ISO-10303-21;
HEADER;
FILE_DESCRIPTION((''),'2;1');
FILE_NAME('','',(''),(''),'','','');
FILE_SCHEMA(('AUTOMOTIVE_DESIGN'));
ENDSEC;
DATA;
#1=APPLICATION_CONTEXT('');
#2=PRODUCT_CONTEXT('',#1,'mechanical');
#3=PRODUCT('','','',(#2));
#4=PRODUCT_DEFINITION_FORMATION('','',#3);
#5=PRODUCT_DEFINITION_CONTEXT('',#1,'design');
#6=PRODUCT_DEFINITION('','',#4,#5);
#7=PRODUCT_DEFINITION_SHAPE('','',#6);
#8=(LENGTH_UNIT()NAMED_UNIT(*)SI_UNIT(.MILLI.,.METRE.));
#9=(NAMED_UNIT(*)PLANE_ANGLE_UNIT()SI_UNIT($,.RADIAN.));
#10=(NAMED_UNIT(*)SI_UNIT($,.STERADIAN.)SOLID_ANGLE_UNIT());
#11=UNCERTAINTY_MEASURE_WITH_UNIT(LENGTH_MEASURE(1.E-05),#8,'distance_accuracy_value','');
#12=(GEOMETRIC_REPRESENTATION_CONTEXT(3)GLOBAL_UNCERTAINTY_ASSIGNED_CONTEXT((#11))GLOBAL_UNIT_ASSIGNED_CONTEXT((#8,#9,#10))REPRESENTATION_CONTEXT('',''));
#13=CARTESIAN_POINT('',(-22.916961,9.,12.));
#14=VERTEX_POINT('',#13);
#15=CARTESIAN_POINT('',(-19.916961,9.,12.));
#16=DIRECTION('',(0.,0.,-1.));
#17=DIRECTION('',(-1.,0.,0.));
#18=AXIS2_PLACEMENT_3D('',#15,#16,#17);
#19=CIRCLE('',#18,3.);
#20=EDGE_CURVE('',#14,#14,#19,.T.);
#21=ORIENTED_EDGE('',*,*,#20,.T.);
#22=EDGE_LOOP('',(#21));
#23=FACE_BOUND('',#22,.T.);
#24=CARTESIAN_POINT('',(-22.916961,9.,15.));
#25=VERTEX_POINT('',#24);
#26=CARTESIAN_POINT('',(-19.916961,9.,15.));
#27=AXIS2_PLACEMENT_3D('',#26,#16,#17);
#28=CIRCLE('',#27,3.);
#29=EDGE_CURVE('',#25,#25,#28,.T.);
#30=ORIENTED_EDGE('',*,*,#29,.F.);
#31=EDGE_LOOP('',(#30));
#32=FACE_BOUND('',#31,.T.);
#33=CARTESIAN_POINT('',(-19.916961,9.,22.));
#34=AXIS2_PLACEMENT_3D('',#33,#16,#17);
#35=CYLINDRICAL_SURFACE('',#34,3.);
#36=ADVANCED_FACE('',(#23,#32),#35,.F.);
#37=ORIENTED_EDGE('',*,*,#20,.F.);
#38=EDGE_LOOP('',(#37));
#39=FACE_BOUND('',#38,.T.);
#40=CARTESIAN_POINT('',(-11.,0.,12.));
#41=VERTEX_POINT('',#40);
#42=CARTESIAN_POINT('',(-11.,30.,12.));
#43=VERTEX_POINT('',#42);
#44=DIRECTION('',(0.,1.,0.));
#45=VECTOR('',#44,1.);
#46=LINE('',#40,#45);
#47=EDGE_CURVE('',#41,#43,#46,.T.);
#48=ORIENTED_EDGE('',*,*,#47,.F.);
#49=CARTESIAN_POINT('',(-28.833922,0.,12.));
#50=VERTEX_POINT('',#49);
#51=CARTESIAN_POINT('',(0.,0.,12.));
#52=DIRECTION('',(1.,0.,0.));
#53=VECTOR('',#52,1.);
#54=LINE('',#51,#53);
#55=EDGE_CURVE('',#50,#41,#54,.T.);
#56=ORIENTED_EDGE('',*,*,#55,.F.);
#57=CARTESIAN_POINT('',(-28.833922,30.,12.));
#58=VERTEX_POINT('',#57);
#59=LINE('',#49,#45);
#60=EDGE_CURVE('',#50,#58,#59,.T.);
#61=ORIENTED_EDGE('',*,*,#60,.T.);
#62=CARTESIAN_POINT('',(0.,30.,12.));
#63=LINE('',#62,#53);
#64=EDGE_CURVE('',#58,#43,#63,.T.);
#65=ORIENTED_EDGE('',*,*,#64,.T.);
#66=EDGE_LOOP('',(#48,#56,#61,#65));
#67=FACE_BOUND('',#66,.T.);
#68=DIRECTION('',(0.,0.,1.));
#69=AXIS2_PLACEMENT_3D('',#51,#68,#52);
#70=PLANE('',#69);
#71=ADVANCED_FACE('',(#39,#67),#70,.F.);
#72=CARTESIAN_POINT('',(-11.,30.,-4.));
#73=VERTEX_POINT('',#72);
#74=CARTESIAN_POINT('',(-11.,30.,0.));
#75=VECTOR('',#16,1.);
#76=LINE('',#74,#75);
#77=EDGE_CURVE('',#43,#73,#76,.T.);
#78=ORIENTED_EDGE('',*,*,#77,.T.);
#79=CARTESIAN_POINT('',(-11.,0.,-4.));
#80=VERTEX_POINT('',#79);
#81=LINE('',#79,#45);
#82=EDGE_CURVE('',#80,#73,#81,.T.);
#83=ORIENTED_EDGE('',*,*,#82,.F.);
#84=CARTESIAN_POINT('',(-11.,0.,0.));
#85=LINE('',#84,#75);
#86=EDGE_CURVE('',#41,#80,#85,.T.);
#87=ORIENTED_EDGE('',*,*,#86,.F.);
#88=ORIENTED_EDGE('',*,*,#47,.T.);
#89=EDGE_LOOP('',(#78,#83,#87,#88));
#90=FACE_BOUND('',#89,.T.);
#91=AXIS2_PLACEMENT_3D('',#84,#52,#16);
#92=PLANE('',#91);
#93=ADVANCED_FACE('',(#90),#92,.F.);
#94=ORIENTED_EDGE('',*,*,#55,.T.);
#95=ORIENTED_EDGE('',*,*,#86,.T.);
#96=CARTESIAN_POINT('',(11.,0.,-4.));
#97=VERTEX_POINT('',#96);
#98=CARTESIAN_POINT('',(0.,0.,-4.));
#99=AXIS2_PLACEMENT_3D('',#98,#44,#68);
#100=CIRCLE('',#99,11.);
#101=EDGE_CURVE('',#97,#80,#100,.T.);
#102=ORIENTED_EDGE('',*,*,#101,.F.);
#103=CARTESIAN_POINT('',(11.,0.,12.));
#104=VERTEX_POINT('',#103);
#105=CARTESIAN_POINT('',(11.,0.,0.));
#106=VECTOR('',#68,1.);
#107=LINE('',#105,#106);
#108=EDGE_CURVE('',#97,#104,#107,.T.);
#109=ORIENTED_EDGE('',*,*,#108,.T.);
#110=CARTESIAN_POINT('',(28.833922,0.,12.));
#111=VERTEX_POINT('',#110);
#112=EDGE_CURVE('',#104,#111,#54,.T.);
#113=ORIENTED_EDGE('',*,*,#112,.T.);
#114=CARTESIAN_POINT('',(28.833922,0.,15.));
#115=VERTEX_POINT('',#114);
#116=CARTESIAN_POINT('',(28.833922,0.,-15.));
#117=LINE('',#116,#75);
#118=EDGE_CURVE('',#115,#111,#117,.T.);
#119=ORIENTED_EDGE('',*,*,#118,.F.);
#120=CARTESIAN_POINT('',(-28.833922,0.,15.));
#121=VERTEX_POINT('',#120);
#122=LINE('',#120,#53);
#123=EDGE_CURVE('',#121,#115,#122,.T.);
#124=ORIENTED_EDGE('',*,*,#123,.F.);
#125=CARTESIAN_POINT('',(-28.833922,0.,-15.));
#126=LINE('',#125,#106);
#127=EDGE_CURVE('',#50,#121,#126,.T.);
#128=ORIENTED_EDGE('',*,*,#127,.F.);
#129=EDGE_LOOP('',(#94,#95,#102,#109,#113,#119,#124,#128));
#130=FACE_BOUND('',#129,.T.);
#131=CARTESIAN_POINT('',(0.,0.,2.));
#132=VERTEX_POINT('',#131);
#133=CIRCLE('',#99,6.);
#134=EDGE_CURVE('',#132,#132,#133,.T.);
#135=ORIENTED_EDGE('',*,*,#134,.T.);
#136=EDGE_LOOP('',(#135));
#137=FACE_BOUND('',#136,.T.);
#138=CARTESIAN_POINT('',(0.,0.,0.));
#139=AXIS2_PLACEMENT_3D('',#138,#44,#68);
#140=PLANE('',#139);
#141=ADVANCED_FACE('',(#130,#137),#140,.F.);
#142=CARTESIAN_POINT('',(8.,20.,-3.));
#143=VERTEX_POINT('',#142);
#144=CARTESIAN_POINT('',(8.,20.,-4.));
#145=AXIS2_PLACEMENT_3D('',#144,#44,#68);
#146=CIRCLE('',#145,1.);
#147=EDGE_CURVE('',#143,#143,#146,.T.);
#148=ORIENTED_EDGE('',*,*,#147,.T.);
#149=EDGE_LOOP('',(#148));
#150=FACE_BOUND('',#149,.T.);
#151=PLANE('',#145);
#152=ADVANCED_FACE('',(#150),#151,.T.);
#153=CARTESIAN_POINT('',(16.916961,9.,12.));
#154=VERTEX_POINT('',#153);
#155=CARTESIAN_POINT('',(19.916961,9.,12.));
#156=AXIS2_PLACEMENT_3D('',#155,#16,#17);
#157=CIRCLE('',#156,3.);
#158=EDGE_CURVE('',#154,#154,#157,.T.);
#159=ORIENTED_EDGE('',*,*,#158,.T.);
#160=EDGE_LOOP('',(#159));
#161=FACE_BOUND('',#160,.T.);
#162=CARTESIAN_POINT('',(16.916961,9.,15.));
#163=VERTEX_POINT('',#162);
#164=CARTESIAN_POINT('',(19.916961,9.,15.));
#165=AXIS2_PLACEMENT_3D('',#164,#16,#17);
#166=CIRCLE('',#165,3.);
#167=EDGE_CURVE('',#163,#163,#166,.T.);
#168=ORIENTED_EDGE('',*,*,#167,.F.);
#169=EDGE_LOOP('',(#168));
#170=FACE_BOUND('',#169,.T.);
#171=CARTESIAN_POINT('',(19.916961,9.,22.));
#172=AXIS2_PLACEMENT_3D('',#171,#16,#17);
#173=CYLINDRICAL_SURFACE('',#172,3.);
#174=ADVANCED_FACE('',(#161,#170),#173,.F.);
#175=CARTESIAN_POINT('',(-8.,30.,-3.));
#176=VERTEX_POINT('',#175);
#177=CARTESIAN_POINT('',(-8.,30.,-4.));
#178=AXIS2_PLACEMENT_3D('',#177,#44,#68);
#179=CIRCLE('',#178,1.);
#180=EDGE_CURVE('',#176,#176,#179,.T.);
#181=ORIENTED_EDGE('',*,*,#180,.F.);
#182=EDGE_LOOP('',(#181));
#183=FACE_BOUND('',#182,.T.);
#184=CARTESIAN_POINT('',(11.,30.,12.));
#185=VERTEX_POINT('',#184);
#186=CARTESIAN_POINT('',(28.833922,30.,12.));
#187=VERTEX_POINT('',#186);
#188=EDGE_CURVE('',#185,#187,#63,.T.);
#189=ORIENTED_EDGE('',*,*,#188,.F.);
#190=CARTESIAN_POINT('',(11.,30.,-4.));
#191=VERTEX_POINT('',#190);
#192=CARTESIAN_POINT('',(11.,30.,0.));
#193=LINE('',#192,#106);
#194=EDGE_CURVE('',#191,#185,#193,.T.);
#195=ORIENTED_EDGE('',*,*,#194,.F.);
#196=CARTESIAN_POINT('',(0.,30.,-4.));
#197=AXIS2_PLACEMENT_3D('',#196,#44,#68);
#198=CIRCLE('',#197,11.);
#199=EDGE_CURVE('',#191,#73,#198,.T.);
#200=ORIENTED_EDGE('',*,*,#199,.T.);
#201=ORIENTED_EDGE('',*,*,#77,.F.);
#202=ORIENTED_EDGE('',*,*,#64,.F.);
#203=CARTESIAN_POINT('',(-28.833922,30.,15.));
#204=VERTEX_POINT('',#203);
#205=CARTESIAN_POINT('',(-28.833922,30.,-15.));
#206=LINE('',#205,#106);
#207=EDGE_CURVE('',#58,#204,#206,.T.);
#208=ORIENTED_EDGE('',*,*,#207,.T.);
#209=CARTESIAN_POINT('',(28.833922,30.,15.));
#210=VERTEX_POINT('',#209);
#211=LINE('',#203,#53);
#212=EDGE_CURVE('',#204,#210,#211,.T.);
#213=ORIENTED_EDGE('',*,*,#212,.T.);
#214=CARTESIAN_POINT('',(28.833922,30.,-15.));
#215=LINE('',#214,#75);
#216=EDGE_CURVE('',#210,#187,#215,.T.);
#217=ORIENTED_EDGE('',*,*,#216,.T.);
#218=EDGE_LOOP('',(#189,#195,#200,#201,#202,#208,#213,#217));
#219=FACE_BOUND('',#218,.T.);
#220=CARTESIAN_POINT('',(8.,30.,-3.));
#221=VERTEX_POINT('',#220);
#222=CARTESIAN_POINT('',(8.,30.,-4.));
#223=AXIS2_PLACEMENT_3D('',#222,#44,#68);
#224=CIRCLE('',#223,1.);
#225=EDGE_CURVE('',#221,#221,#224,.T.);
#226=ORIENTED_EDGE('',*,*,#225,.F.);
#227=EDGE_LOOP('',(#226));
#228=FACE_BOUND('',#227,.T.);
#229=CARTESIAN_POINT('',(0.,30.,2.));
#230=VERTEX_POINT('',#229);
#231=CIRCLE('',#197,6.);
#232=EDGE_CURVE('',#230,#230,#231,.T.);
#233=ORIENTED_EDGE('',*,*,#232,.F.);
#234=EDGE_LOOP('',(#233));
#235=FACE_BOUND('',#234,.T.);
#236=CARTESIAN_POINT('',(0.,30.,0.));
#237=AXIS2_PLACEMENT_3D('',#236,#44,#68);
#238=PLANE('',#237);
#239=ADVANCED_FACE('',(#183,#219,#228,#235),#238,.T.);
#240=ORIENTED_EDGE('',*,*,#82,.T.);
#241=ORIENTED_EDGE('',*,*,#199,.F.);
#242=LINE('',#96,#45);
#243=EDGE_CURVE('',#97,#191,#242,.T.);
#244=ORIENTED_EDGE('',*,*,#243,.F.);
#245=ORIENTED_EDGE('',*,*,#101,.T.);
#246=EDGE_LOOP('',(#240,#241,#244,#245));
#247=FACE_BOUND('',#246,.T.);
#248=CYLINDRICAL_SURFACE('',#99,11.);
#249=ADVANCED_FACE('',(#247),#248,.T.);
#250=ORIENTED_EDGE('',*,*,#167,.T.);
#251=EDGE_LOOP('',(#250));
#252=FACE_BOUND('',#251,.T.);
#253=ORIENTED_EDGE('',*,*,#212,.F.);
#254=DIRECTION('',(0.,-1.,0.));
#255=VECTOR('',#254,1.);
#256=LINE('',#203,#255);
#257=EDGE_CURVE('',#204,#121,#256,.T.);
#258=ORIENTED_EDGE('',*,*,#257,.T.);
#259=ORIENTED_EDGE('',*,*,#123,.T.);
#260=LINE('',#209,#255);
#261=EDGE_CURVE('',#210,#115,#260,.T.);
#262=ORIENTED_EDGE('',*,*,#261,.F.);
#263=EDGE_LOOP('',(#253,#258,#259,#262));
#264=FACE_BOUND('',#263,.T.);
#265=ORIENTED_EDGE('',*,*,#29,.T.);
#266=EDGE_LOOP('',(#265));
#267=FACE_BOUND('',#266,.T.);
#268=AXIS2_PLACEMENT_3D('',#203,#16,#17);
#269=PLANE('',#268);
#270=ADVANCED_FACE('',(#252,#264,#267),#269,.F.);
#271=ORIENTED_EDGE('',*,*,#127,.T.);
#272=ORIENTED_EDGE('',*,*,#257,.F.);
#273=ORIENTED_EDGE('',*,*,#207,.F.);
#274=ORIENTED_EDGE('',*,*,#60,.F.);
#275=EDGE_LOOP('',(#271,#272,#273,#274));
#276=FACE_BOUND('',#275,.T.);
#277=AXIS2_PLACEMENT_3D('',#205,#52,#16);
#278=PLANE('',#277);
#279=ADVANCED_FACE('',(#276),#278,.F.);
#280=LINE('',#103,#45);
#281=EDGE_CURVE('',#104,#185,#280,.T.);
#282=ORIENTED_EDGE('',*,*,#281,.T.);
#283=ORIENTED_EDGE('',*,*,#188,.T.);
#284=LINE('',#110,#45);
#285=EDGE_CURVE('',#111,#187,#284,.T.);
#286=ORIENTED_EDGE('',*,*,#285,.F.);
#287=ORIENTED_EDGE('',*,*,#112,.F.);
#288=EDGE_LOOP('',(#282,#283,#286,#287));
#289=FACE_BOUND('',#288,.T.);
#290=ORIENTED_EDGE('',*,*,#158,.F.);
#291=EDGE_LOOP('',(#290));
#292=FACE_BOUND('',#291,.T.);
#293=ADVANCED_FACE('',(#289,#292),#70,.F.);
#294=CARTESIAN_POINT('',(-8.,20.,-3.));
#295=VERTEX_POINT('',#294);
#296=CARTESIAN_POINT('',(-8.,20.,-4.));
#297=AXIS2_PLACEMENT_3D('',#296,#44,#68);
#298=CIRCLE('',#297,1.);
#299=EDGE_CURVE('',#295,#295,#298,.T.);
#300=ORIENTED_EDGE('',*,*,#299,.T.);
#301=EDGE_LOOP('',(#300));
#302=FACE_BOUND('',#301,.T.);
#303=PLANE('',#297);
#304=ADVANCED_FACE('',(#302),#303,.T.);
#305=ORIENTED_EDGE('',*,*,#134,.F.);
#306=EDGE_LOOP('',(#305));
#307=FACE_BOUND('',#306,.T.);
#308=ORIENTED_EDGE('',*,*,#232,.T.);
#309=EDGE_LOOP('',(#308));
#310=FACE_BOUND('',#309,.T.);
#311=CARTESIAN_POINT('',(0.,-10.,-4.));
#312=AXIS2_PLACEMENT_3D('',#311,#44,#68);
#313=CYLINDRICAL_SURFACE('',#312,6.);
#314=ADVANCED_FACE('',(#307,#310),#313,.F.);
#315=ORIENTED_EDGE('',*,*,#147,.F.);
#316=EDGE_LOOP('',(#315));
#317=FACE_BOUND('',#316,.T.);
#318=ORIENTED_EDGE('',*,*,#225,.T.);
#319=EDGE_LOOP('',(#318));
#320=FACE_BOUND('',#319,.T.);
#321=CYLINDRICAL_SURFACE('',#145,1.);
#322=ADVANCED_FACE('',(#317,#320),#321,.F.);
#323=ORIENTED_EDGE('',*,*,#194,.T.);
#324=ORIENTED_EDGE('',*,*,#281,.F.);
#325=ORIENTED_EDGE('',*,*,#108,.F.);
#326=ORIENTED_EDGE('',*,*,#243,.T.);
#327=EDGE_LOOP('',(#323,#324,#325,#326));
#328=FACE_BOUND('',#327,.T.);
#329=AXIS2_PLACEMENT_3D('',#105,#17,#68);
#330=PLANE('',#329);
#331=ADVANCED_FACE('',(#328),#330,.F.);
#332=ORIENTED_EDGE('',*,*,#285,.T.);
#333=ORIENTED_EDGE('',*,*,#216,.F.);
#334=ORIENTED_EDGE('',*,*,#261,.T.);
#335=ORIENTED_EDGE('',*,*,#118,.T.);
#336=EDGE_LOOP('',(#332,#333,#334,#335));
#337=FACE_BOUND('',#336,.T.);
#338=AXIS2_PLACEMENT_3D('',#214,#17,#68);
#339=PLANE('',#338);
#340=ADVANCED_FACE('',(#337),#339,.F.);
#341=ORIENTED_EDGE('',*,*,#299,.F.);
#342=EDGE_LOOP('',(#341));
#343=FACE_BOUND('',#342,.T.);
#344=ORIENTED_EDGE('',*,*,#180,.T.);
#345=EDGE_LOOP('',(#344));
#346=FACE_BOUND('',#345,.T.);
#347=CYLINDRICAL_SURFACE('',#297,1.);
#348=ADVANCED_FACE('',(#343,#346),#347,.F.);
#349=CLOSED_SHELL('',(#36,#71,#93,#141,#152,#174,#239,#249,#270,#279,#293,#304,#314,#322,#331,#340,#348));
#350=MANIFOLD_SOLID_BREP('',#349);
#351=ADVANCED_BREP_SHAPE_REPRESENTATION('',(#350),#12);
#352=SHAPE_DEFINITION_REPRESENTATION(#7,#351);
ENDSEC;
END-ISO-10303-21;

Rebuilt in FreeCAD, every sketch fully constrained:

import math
import FreeCAD as App
import Part
import Sketcher
Q = App.Units.Quantity

doc = App.newDocument("Part")
params = doc.addObject("Spreadsheet::Sheet", "Params")
for row, (alias, value) in enumerate([
    ("sketch1_height", "30 mm"),
    ("pad1_length", "30 mm"),
    ("sketch2_diameter", "12 mm"),
    ("pocket1_length", "40 mm"),
    ("sketch3_radius", "11 mm"),
    ("sketch3_height", "16 mm"),
    ("sketch4_diameter", "2 mm"),
    ("pocket3_length", "10 mm"),
    ("sketch5_diameter", "6 mm"),
    ("pocket4_length", "10 mm"),
], start=1):
    params.set(f"A{row}", alias)
    params.set(f"B{row}", "=" + value)
    params.setAlias(f"B{row}", alias)

body = doc.addObject("PartDesign::Body", "Body")

# Sketch on XZ plane
sketch1 = body.newObject("Sketcher::SketchObject", "Sketch")
sketch1.AttachmentSupport = (doc.getObject("XZ_Plane"), [""])
sketch1.MapMode = "FlatFace"
sketch1.addGeometry([
    Part.LineSegment(App.Vector(-29, -15, 0), App.Vector(-29, 15, 0)),
    Part.LineSegment(App.Vector(-29, 15, 0), App.Vector(29, 15, 0)),
    Part.LineSegment(App.Vector(29, 15, 0), App.Vector(29, -15, 0)),
    Part.LineSegment(App.Vector(29, -15, 0), App.Vector(-29, -15, 0)),
], False)
sketch1.addConstraint([
    Sketcher.Constraint("Coincident", 0, 2, 1, 1),
    Sketcher.Constraint("Coincident", 1, 2, 2, 1),
    Sketcher.Constraint("Coincident", 2, 2, 3, 1),
    Sketcher.Constraint("Coincident", 3, 2, 0, 1),
    Sketcher.Constraint("Vertical", 0),
    Sketcher.Constraint("Horizontal", 1),
    Sketcher.Constraint("Vertical", 2),
    Sketcher.Constraint("Horizontal", 3),
    Sketcher.Constraint("Symmetric", 0, 2, 2, 2, -1, 1),
    Sketcher.Constraint("DistanceY", 0, 1, 0, 2, Q("30 mm")),
    Sketcher.Constraint("DistanceX", 1, 1, 1, 2, Q("57.667845 mm")),
])
sketch1.setExpression("Constraints[9]", "Params.sketch1_height")
pad1 = body.newObject("PartDesign::Pad", "Pad")
pad1.Profile = sketch1
pad1.setExpression("Length", "Params.pad1_length")
pad1.Reversed = True

# Sketch on XZ plane
sketch2 = body.newObject("Sketcher::SketchObject", "Sketch001")
sketch2.AttachmentSupport = (doc.getObject("XZ_Plane"), [""])
sketch2.MapMode = "FlatFace"
sketch2.AttachmentOffset = App.Placement(App.Vector(0, 0, -30), App.Rotation())
sketch2.addGeometry(Part.Circle(App.Vector(0, -4, 0), App.Vector(0, 0, 1), 6), False)
sketch2.addConstraint([
    Sketcher.Constraint("PointOnObject", 0, 3, -2),
    Sketcher.Constraint("Diameter", 0, Q("12 mm")),
    Sketcher.Constraint("DistanceY", 0, 3, -1, 1, Q("4 mm")),
])
sketch2.setExpression("Constraints[1]", "Params.sketch2_diameter")
pocket1 = body.newObject("PartDesign::Pocket", "Pocket")
pocket1.Profile = sketch2
pocket1.setExpression("Length", "Params.pocket1_length")
pocket1.Reversed = True

# Sketch on XZ plane
sketch3 = body.newObject("Sketcher::SketchObject", "Sketch002")
sketch3.AttachmentSupport = (doc.getObject("XZ_Plane"), [""])
sketch3.MapMode = "FlatFace"
sketch3.AttachmentOffset = App.Placement(App.Vector(0, 0, -30), App.Rotation())
sketch3.addGeometry([
    Part.ArcOfCircle(Part.Circle(App.Vector(0, -4, 0), App.Vector(0, 0, 1), 11), math.radians(-90), math.radians(0)),  # 0
    Part.LineSegment(App.Vector(11, -4, 0), App.Vector(11, 12, 0)),  # 1
    Part.LineSegment(App.Vector(11, 12, 0), App.Vector(29, 12, 0)),  # 2
    Part.LineSegment(App.Vector(29, 12, 0), App.Vector(29, -15, 0)),  # 3
    Part.LineSegment(App.Vector(29, -15, 0), App.Vector(0, -15, 0)),  # 4
    Part.ArcOfCircle(Part.Circle(App.Vector(0, -4, 0), App.Vector(0, 0, 1), 11), math.radians(180), math.radians(270)),  # 5
    Part.LineSegment(App.Vector(0, -15, 0), App.Vector(-29, -15, 0)),  # 6
    Part.LineSegment(App.Vector(-29, -15, 0), App.Vector(-29, 12, 0)),  # 7
    Part.LineSegment(App.Vector(-29, 12, 0), App.Vector(-11, 12, 0)),  # 8
    Part.LineSegment(App.Vector(-11, 12, 0), App.Vector(-11, -4, 0)),  # 9
], False)
sketch3.addConstraint([
    Sketcher.Constraint("Tangent", 0, 2, 1, 1),
    Sketcher.Constraint("Coincident", 1, 2, 2, 1),
    Sketcher.Constraint("Coincident", 2, 2, 3, 1),
    Sketcher.Constraint("Coincident", 3, 2, 4, 1),
    Sketcher.Constraint("Tangent", 4, 2, 0, 1),
    Sketcher.Constraint("Tangent", 5, 2, 6, 1),
    Sketcher.Constraint("Coincident", 6, 2, 7, 1),
    Sketcher.Constraint("Coincident", 7, 2, 8, 1),
    Sketcher.Constraint("Coincident", 8, 2, 9, 1),
    Sketcher.Constraint("Tangent", 9, 2, 5, 1),
    Sketcher.Constraint("Vertical", 1),
    Sketcher.Constraint("Horizontal", 2),
    Sketcher.Constraint("Vertical", 3),
    Sketcher.Constraint("Horizontal", 4),
    Sketcher.Constraint("Horizontal", 6),
    Sketcher.Constraint("Vertical", 7),
    Sketcher.Constraint("Horizontal", 8),
    Sketcher.Constraint("Vertical", 9),
    Sketcher.Constraint("Coincident", 5, 3, 0, 3),
    Sketcher.Constraint("Equal", 0, 5),
    Sketcher.Constraint("Symmetric", 2, 2, 7, 2, -2),
    Sketcher.Constraint("PointOnObject", 0, 3, -2),
    Sketcher.Constraint("Radius", 0, Q("11 mm")),
    Sketcher.Constraint("DistanceY", 1, 1, 1, 2, Q("16 mm")),
    Sketcher.Constraint("DistanceY", 0, 3, -1, 1, Q("4 mm")),
    Sketcher.Constraint("DistanceX", 2, 1, 2, 2, Q("17.833922 mm")),
])
sketch3.setExpression("Constraints[22]", "Params.sketch3_radius")
sketch3.setExpression("Constraints[23]", "Params.sketch3_height")
pocket2 = body.newObject("PartDesign::Pocket", "Pocket001")
pocket2.Profile = sketch3
pocket2.Type = "ThroughAll"
pocket2.Reversed = True

# Sketch on XZ plane
sketch4 = body.newObject("Sketcher::SketchObject", "Sketch003")
sketch4.AttachmentSupport = (doc.getObject("XZ_Plane"), [""])
sketch4.MapMode = "FlatFace"
sketch4.AttachmentOffset = App.Placement(App.Vector(0, 0, -30), App.Rotation())
sketch4.addGeometry([
    Part.Circle(App.Vector(-8, -4, 0), App.Vector(0, 0, 1), 1),
    Part.Circle(App.Vector(8, -4, 0), App.Vector(0, 0, 1), 1),
], False)
sketch4.addConstraint([
    Sketcher.Constraint("Equal", 0, 1),
    Sketcher.Constraint("Symmetric", 0, 3, 1, 3, -2),
    Sketcher.Constraint("Diameter", 0, Q("2 mm")),
    Sketcher.Constraint("DistanceX", 0, 3, -1, 1, Q("8 mm")),
    Sketcher.Constraint("DistanceY", 0, 3, -1, 1, Q("4 mm")),
])
sketch4.setExpression("Constraints[2]", "Params.sketch4_diameter")
pocket3 = body.newObject("PartDesign::Pocket", "Pocket002")
pocket3.Profile = sketch4
pocket3.setExpression("Length", "Params.pocket3_length")
pocket3.Reversed = True

# Sketch on XY plane
sketch5 = body.newObject("Sketcher::SketchObject", "Sketch004")
sketch5.AttachmentSupport = (doc.getObject("XY_Plane"), [""])
sketch5.MapMode = "FlatFace"
sketch5.AttachmentOffset = App.Placement(App.Vector(0, 0, 12), App.Rotation())
sketch5.addGeometry([
    Part.Circle(App.Vector(-19.9, 9, 0), App.Vector(0, 0, 1), 3),
    Part.Circle(App.Vector(19.9, 9, 0), App.Vector(0, 0, 1), 3),
], False)
sketch5.addConstraint([
    Sketcher.Constraint("Equal", 0, 1),
    Sketcher.Constraint("Symmetric", 0, 3, 1, 3, -2),
    Sketcher.Constraint("Diameter", 0, Q("6 mm")),
    Sketcher.Constraint("DistanceY", -1, 1, 0, 3, Q("9 mm")),
    Sketcher.Constraint("DistanceX", 0, 3, -1, 1, Q("19.916961 mm")),
])
sketch5.setExpression("Constraints[2]", "Params.sketch5_diameter")
pocket4 = body.newObject("PartDesign::Pocket", "Pocket003")
pocket4.Profile = sketch5
pocket4.setExpression("Length", "Params.pocket4_length")
pocket4.Reversed = True

doc.recompute()
